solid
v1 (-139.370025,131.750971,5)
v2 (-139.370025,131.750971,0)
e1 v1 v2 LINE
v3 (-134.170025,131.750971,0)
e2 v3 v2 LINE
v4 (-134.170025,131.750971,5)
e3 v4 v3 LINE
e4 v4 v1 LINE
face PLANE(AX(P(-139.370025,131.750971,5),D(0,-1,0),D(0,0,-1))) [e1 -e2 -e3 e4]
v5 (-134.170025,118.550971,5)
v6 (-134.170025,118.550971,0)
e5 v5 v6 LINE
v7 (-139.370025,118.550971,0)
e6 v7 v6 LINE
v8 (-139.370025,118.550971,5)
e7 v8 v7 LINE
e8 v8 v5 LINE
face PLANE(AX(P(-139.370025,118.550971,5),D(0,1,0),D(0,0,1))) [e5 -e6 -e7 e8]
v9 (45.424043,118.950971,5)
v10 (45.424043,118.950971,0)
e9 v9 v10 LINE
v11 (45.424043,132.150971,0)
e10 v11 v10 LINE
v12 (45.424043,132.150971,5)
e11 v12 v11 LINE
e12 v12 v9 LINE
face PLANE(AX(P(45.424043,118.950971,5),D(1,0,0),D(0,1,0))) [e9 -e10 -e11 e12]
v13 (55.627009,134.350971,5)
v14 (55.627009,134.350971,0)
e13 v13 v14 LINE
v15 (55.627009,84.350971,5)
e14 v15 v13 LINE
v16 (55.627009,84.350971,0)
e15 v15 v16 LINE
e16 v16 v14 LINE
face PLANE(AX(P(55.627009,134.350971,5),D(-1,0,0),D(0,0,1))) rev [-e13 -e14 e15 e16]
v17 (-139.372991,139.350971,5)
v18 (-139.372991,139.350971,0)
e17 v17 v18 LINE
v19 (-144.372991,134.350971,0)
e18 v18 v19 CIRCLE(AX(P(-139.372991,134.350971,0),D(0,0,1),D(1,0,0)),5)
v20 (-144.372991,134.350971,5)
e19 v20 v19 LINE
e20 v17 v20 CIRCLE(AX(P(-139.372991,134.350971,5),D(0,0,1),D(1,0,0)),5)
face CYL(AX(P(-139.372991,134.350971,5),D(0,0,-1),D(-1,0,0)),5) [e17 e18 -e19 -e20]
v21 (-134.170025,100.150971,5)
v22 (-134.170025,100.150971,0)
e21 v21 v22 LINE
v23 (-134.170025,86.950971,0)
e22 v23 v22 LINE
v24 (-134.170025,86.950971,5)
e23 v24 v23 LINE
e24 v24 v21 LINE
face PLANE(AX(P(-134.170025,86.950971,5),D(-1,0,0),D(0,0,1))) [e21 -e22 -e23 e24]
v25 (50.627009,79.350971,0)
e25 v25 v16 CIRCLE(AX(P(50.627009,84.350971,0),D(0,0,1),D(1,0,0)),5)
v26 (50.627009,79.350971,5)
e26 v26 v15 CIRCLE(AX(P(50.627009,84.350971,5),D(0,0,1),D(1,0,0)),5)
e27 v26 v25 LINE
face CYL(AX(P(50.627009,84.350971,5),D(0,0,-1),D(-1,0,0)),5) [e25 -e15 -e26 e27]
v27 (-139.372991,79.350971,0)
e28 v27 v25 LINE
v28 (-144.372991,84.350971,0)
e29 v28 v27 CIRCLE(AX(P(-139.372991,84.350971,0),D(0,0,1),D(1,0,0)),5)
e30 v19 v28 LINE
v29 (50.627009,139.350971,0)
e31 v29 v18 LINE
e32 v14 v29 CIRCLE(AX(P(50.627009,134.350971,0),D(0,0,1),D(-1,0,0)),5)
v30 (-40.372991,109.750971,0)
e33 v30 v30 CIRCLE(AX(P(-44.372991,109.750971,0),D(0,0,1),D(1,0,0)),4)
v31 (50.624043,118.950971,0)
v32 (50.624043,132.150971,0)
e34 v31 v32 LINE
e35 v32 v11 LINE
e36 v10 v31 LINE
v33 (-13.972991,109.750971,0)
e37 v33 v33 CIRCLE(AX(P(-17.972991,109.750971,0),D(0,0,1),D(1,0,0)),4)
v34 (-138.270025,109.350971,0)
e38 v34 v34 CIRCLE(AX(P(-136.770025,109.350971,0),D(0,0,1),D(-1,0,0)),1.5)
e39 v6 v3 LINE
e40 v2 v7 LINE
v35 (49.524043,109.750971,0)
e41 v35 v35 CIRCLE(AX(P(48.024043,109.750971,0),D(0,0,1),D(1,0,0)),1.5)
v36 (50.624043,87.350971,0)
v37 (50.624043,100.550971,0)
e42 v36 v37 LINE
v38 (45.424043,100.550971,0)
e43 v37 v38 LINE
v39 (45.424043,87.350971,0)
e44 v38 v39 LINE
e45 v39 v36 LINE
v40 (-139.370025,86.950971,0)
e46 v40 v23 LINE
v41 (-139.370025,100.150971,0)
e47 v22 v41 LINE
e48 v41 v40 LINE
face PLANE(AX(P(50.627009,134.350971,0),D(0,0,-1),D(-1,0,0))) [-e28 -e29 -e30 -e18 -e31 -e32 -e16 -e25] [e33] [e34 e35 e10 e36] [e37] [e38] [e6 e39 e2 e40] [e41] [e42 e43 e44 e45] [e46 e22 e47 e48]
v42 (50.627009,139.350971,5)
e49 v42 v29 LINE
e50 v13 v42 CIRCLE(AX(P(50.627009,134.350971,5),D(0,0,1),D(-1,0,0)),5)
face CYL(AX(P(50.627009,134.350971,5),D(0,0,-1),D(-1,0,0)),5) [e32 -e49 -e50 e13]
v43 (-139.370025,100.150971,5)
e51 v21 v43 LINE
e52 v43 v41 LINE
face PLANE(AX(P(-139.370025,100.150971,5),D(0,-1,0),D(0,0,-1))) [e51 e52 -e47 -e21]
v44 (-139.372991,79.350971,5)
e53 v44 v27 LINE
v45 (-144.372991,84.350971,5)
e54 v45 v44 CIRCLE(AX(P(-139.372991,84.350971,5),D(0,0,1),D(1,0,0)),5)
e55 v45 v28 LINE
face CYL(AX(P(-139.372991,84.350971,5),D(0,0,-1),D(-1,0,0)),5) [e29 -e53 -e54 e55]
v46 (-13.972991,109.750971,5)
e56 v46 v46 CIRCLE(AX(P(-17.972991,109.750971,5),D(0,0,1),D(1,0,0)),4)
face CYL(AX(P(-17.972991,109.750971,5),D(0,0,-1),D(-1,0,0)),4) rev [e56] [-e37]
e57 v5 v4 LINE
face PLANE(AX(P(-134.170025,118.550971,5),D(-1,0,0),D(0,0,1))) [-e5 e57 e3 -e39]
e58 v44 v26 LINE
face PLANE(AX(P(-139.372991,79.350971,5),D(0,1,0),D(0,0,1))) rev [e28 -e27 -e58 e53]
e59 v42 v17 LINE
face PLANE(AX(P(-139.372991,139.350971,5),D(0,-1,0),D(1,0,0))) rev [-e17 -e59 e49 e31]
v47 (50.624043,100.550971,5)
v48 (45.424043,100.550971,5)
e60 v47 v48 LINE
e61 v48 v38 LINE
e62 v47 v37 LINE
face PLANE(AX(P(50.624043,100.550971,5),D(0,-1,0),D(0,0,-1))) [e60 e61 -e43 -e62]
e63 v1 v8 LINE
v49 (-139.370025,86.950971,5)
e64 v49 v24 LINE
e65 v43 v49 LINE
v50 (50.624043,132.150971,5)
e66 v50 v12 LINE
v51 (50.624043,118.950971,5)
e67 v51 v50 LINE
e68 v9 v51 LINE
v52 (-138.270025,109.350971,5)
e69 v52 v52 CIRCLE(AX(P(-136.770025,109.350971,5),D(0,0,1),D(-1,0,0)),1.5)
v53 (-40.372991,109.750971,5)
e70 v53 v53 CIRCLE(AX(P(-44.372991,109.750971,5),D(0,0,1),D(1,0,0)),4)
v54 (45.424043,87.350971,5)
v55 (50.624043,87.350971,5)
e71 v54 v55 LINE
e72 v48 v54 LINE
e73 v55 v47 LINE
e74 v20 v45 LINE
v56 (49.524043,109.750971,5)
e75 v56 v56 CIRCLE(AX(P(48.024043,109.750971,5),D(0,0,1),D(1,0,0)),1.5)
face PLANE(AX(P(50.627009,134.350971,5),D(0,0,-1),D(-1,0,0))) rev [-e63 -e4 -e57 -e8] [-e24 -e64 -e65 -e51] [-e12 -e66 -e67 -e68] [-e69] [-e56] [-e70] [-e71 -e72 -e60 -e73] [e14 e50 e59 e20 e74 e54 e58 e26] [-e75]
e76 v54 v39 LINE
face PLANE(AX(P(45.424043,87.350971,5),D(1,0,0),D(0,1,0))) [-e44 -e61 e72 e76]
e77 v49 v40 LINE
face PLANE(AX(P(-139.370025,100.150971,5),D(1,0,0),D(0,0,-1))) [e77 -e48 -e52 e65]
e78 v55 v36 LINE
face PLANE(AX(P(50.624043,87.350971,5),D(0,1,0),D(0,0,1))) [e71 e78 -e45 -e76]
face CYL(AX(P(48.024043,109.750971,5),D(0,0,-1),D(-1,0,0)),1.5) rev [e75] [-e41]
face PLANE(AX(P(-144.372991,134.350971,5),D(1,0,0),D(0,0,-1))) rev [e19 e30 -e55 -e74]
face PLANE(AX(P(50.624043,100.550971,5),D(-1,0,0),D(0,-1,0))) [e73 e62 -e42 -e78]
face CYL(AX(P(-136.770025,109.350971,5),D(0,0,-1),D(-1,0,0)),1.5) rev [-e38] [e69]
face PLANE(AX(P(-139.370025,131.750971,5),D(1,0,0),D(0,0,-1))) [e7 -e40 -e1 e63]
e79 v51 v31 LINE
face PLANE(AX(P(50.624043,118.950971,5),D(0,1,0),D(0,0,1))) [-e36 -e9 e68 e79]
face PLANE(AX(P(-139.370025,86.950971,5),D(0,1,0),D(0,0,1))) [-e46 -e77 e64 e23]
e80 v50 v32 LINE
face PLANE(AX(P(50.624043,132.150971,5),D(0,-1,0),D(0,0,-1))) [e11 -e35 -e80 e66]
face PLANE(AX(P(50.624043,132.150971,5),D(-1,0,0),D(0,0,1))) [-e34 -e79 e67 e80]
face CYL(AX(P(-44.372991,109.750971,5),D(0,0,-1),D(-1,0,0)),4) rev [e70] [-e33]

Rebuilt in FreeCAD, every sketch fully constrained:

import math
import FreeCAD as App
import Part
import Sketcher

V = App.Vector
Q = App.Units.Quantity

doc = App.newDocument("Part")
params = doc.addObject("Spreadsheet::Sheet", "Params")
for row, (alias, value) in enumerate([
    ("sketch1_diameter", "3 mm"),
    ("sketch1_diameter2", "8 mm"),
    ("sketch1_radius", "5 mm"),
    ("sketch1_width", "190 mm"),
    ("sketch1_height", "50 mm"),
    ("pad1_length", "5 mm"),
], start=1):
    params.set(f"A{row}", alias)
    params.set(f"B{row}", "=" + value)
    params.setAlias(f"B{row}", alias)

body = doc.addObject("PartDesign::Body", "Body")

sketch1 = doc.addObject("Sketcher::SketchObject", "Sketch")
body.addObject(sketch1)
sketch1.AttachmentSupport = (doc.XY_Plane, [""])
sketch1.MapMode = "FlatFace"
sketch1.addGeometry([
    Part.LineSegment(V(50.6, 139.4, 0), V(-139.4, 139.4, 0)),
    Part.ArcOfCircle(Part.Circle(V(-139.4, 134.4, 0), V(0, 0, 1), 5), math.radians(90), math.radians(180)),
    Part.LineSegment(V(-144.4, 134.4, 0), V(-144.4, 84.4, 0)),
    Part.ArcOfCircle(Part.Circle(V(-139.4, 84.4, 0), V(0, 0, 1), 5), math.radians(180), math.radians(270)),
    Part.LineSegment(V(-139.4, 79.4, 0), V(50.6, 79.4, 0)),
    Part.ArcOfCircle(Part.Circle(V(50.6, 84.4, 0), V(0, 0, 1), 5), math.radians(-90), math.radians(0)),
    Part.LineSegment(V(55.6, 84.4, 0), V(55.6, 134.4, 0)),
    Part.ArcOfCircle(Part.Circle(V(50.6, 134.4, 0), V(0, 0, 1), 5), math.radians(0), math.radians(90)),
    Part.LineSegment(V(45.4, 87.4, 0), V(45.4, 100.6, 0)),
    Part.LineSegment(V(45.4, 100.6, 0), V(50.6, 100.6, 0)),
    Part.LineSegment(V(50.6, 100.6, 0), V(50.6, 87.4, 0)),
    Part.LineSegment(V(50.6, 87.4, 0), V(45.4, 87.4, 0)),
    Part.LineSegment(V(-139.4, 87, 0), V(-139.4, 100.2, 0)),
    Part.LineSegment(V(-139.4, 100.2, 0), V(-134.2, 100.2, 0)),
    Part.LineSegment(V(-134.2, 100.2, 0), V(-134.2, 87, 0)),
    Part.LineSegment(V(-134.2, 87, 0), V(-139.4, 87, 0)),
    Part.Circle(V(-136.8, 109.4, 0), V(0, 0, 1), 1.5),
    Part.Circle(V(48, 109.8, 0), V(0, 0, 1), 1.5),
    Part.Circle(V(-18, 109.8, 0), V(0, 0, 1), 4),
    Part.LineSegment(V(45.4, 119, 0), V(45.4, 132.2, 0)),
    Part.LineSegment(V(45.4, 132.2, 0), V(50.6, 132.2, 0)),
    Part.LineSegment(V(50.6, 132.2, 0), V(50.6, 119, 0)),
    Part.LineSegment(V(50.6, 119, 0), V(45.4, 119, 0)),
    Part.Circle(V(-44.4, 109.8, 0), V(0, 0, 1), 4),
    Part.LineSegment(V(-139.4, 118.6, 0), V(-139.4, 131.8, 0)),
    Part.LineSegment(V(-139.4, 131.8, 0), V(-134.2, 131.8, 0)),
    Part.LineSegment(V(-134.2, 131.8, 0), V(-134.2, 118.6, 0)),
    Part.LineSegment(V(-134.2, 118.6, 0), V(-139.4, 118.6, 0)),
], False)
sketch1.addConstraint([
    Sketcher.Constraint("Tangent", 0, 2, 1, 1),
    Sketcher.Constraint("Tangent", 1, 2, 2, 1),
    Sketcher.Constraint("Tangent", 2, 2, 3, 1),
    Sketcher.Constraint("Tangent", 3, 2, 4, 1),
    Sketcher.Constraint("Tangent", 4, 2, 5, 1),
    Sketcher.Constraint("Tangent", 5, 2, 6, 1),
    Sketcher.Constraint("Tangent", 6, 2, 7, 1),
    Sketcher.Constraint("Tangent", 7, 2, 0, 1),
    Sketcher.Constraint("Coincident", 8, 2, 9, 1),
    Sketcher.Constraint("Coincident", 9, 2, 10, 1),
    Sketcher.Constraint("Coincident", 10, 2, 11, 1),
    Sketcher.Constraint("Coincident", 11, 2, 8, 1),
    Sketcher.Constraint("Coincident", 12, 2, 13, 1),
    Sketcher.Constraint("Coincident", 13, 2, 14, 1),
    Sketcher.Constraint("Coincident", 14, 2, 15, 1),
    Sketcher.Constraint("Coincident", 15, 2, 12, 1),
    Sketcher.Constraint("Coincident", 19, 2, 20, 1),
    Sketcher.Constraint("Coincident", 20, 2, 21, 1),
    Sketcher.Constraint("Coincident", 21, 2, 22, 1),
    Sketcher.Constraint("Coincident", 22, 2, 19, 1),
    Sketcher.Constraint("Coincident", 24, 2, 25, 1),
    Sketcher.Constraint("Coincident", 25, 2, 26, 1),
    Sketcher.Constraint("Coincident", 26, 2, 27, 1),
    Sketcher.Constraint("Coincident", 27, 2, 24, 1),
    Sketcher.Constraint("Horizontal", 0),
    Sketcher.Constraint("Vertical", 2),
    Sketcher.Constraint("Horizontal", 4),
    Sketcher.Constraint("Vertical", 6),
    Sketcher.Constraint("Vertical", 8),
    Sketcher.Constraint("Horizontal", 9),
    Sketcher.Constraint("Vertical", 10),
    Sketcher.Constraint("Horizontal", 11),
    Sketcher.Constraint("Vertical", 12),
    Sketcher.Constraint("Horizontal", 13),
    Sketcher.Constraint("Vertical", 14),
    Sketcher.Constraint("Horizontal", 15),
    Sketcher.Constraint("Vertical", 19),
    Sketcher.Constraint("Horizontal", 20),
    Sketcher.Constraint("Vertical", 21),
    Sketcher.Constraint("Horizontal", 22),
    Sketcher.Constraint("Vertical", 24),
    Sketcher.Constraint("Horizontal", 25),
    Sketcher.Constraint("Vertical", 26),
    Sketcher.Constraint("Horizontal", 27),
    Sketcher.Constraint("Equal", 1, 3),
    Sketcher.Constraint("Equal", 3, 5),
    Sketcher.Constraint("Equal", 5, 7),
    Sketcher.Constraint("Equal", 16, 17),
    Sketcher.Constraint("Equal", 18, 23),
    Sketcher.Constraint("Horizontal", 17, 3, 18, 3),
    Sketcher.Constraint("Horizontal", 18, 3, 23, 3),
    Sketcher.Constraint("Vertical", 11, 2, 19, 2),
    Sketcher.Constraint("Vertical", 10, 2, 20, 2),
    Sketcher.Constraint("Vertical", 15, 2, 24, 2),
    Sketcher.Constraint("Vertical", 14, 2, 25, 2),
    Sketcher.Constraint("Equal", 11, 13),
    Sketcher.Constraint("Equal", 10, 12),
    Sketcher.Constraint("Equal", 14, 19),
    Sketcher.Constraint("Equal", 21, 24),
    Sketcher.Constraint("Diameter", 16, Q("3 mm")),
    Sketcher.Constraint("Diameter", 18, Q("8 mm")),
    Sketcher.Constraint("Radius", 1, Q("5 mm")),
    Sketcher.Constraint("DistanceX", 0, 2, 0, 1, Q("190 mm")),
    Sketcher.Constraint("DistanceY", 2, 2, 2, 1, Q("50 mm")),
    Sketcher.Constraint("DistanceX", 9, 1, 9, 2, Q("5.2 mm")),
    Sketcher.Constraint("DistanceY", 8, 1, 8, 2, Q("13.2 mm")),
    Sketcher.Constraint("DistanceY", 16, 3, 1, 3, Q("25 mm")),
    Sketcher.Constraint("DistanceX", 1, 3, 23, 3, Q("95 mm")),
    Sketcher.Constraint("DistanceY", 5, 3, 10, 2, Q("3 mm")),
    Sketcher.Constraint("DistanceY", 17, 3, 7, 3, Q("24.6 mm")),
    Sketcher.Constraint("DistanceX", 18, 3, 7, 3, Q("68.6 mm")),
    Sketcher.Constraint("DistanceX", 8, 2, 17, 3, Q("2.6 mm")),
    Sketcher.Constraint("DistanceX", 12, 2, 16, 3, Q("2.6 mm")),
    Sketcher.Constraint("DistanceY", 12, 2, 16, 3, Q("9.2 mm")),
    Sketcher.Constraint("DistanceY", 19, 2, 7, 3, Q("2.2 mm")),
    Sketcher.Constraint("DistanceY", 24, 2, 1, 3, Q("2.6 mm")),
    Sketcher.Constraint("DistanceX", 1, 3, -1, 1, Q("139.372991 mm")),
    Sketcher.Constraint("DistanceY", -1, 1, 1, 3, Q("134.350971 mm")),
    Sketcher.Constraint("DistanceX", 16, 3, 17, 3, Q("184.794068 mm")),
    Sketcher.Constraint("DistanceX", 16, 3, -1, 1, Q("136.770025 mm")),
])
sketch1.setExpression("Constraints[59]", "Params.sketch1_diameter")
sketch1.setExpression("Constraints[60]", "Params.sketch1_diameter2")
sketch1.setExpression("Constraints[61]", "Params.sketch1_radius")
sketch1.setExpression("Constraints[62]", "Params.sketch1_width")
sketch1.setExpression("Constraints[63]", "Params.sketch1_height")
pad1 = doc.addObject("PartDesign::Pad", "Pad")
body.addObject(pad1)
pad1.Profile = sketch1
pad1.setExpression("Length", "Params.pad1_length")

doc.recompute()
